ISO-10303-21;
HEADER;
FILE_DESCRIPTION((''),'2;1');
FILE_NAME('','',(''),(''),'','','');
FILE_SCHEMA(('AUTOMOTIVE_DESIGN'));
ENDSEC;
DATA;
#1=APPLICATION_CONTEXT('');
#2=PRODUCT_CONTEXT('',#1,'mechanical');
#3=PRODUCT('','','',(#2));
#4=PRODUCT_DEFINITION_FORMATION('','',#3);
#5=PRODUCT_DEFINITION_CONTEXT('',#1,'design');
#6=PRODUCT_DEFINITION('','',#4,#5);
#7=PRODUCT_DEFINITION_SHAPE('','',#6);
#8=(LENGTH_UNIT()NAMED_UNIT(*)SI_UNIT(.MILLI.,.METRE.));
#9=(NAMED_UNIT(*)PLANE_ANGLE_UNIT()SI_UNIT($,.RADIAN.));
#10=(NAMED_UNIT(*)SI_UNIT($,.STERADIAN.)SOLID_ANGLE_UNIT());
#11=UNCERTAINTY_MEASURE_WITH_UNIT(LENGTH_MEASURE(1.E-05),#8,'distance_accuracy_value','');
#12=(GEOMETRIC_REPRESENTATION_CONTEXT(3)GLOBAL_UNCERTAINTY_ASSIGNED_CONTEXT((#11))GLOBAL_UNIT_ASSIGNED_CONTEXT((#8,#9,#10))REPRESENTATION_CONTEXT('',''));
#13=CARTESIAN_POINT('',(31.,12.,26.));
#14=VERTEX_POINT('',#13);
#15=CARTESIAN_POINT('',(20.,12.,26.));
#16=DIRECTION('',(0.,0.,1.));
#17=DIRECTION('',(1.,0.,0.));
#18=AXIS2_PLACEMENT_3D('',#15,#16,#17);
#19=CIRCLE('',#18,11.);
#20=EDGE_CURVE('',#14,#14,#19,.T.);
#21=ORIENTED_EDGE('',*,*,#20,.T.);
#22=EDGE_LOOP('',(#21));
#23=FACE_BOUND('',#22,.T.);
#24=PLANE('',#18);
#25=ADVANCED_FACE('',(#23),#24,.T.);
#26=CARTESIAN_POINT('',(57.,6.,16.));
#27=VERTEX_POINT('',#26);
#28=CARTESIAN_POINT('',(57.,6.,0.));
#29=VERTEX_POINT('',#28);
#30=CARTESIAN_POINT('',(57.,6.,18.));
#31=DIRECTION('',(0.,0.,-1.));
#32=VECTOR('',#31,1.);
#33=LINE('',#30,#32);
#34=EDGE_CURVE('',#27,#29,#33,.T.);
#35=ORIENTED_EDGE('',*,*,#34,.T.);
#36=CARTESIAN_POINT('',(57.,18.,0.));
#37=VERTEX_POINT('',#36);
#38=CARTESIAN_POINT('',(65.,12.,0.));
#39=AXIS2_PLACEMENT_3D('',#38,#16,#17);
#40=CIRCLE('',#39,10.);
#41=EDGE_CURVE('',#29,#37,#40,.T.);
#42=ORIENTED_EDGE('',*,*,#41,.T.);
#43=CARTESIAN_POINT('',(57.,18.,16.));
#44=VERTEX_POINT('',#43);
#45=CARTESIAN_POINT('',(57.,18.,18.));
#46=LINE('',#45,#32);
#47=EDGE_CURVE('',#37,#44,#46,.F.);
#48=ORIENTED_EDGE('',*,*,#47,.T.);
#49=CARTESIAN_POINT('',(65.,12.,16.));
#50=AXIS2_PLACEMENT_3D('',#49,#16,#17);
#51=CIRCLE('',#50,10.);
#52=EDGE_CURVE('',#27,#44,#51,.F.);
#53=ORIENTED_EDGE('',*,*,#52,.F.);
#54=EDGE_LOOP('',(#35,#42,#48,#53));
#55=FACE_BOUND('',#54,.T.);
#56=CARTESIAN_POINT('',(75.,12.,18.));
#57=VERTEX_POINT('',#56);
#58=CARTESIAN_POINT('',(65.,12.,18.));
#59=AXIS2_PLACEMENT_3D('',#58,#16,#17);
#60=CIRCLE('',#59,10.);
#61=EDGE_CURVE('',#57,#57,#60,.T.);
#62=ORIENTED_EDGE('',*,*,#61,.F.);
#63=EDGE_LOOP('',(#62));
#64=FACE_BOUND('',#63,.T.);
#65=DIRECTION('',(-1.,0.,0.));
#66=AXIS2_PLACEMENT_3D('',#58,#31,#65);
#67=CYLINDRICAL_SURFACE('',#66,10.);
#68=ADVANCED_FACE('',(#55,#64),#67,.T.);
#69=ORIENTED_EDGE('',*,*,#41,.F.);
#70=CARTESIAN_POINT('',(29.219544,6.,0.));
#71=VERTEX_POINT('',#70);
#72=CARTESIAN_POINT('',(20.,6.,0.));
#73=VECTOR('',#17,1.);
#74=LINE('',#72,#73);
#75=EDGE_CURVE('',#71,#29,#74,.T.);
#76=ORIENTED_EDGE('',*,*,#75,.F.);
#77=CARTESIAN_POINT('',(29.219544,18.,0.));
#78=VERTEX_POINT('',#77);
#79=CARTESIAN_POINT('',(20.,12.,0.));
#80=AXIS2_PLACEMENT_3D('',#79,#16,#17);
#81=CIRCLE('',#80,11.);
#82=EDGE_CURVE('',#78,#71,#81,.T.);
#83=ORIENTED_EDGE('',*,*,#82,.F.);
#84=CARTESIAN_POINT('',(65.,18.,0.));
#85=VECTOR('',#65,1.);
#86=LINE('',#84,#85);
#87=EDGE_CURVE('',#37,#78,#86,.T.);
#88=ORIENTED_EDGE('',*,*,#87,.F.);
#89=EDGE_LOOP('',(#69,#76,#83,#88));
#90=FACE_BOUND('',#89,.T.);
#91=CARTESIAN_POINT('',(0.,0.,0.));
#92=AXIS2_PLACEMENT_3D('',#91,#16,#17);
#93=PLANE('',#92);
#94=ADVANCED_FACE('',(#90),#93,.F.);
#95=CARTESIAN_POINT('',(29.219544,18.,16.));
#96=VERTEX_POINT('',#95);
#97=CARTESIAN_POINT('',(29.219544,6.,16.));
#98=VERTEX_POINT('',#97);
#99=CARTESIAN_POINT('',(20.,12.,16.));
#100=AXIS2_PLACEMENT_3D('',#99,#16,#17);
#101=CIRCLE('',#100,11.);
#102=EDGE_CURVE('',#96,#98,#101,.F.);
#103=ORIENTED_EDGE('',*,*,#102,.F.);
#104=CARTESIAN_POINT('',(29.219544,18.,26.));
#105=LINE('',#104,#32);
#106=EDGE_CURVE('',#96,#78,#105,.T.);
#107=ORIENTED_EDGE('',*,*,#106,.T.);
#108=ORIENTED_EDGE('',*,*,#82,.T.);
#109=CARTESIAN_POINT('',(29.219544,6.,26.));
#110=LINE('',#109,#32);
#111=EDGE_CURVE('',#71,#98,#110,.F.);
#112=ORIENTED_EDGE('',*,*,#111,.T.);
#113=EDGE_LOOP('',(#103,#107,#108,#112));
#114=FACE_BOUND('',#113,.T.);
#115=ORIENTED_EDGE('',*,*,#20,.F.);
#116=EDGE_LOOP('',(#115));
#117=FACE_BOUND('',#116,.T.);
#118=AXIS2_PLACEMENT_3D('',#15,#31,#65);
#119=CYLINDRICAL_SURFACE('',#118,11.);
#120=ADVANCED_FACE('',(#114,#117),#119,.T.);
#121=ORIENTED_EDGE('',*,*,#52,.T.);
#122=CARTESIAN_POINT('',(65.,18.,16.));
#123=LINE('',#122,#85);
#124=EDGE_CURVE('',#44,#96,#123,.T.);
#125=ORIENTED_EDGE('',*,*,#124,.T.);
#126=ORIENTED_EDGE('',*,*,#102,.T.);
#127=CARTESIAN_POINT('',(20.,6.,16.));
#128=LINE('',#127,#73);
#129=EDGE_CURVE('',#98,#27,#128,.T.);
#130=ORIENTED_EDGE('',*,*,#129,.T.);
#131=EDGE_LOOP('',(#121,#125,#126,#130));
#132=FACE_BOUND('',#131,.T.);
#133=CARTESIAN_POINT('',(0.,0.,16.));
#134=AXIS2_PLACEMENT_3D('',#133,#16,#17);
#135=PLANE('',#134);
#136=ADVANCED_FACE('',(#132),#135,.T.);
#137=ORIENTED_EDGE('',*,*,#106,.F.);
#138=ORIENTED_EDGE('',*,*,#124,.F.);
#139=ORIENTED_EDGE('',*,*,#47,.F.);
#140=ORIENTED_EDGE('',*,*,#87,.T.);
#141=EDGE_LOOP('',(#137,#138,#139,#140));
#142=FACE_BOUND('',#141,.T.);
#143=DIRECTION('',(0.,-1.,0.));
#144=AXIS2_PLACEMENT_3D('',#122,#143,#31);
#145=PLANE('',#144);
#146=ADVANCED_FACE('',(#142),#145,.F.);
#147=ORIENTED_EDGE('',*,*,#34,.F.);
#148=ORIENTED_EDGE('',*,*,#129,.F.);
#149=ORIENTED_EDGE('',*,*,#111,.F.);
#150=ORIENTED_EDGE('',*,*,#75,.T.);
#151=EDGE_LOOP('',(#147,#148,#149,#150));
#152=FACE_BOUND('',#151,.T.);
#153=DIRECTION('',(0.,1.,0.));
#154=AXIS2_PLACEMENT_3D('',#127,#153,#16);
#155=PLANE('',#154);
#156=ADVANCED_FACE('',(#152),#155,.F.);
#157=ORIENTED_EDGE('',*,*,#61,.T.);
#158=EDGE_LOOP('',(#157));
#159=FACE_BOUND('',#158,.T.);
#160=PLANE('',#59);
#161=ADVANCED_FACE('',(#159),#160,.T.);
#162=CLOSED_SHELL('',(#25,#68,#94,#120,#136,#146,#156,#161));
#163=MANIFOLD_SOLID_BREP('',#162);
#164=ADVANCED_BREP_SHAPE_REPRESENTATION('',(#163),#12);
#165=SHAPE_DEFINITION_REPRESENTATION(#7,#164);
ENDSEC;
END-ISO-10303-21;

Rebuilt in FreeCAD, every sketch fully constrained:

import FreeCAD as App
import Part
import Sketcher

V = App.Vector
Q = App.Units.Quantity

doc = App.newDocument("Part")
body = doc.addObject("PartDesign::Body", "Body")

# Sketch on XY plane
sketch1 = body.newObject("Sketcher::SketchObject", "Sketch")
sketch1.AttachmentSupport = (doc.getObject("XY_Plane"), [""])
sketch1.MapMode = "FlatFace"
sketch1.addGeometry([
    Part.LineSegment(V(20, 18, 0), V(20, 6, 0)),
    Part.LineSegment(V(20, 6, 0), V(65, 6, 0)),
    Part.LineSegment(V(65, 6, 0), V(65, 18, 0)),
    Part.LineSegment(V(65, 18, 0), V(20, 18, 0)),
], False)
sketch1.addConstraint([
    Sketcher.Constraint("Coincident", 0, 2, 1, 1),
    Sketcher.Constraint("Coincident", 1, 2, 2, 1),
    Sketcher.Constraint("Coincident", 2, 2, 3, 1),
    Sketcher.Constraint("Coincident", 3, 2, 0, 1),
    Sketcher.Constraint("Vertical", 0),
    Sketcher.Constraint("Horizontal", 1),
    Sketcher.Constraint("Vertical", 2),
    Sketcher.Constraint("Horizontal", 3),
    Sketcher.Constraint("DistanceX", 1, 1, 1, 2, Q("45 mm")),
    Sketcher.Constraint("DistanceY", 0, 2, 0, 1, Q("12 mm")),
    Sketcher.Constraint("DistanceX", -1, 1, 0, 2, Q("20 mm")),
    Sketcher.Constraint("DistanceY", -1, 1, 0, 2, Q("6 mm")),
])
pad1 = body.newObject("PartDesign::Pad", "Pad")
pad1.Profile = sketch1
pad1.Length = 16

# Sketch on XY plane
sketch2 = body.newObject("Sketcher::SketchObject", "Sketch001")
sketch2.AttachmentSupport = (doc.getObject("XY_Plane"), [""])
sketch2.MapMode = "FlatFace"
sketch2.addGeometry(Part.Circle(V(20, 12, 0), V(0, 0, 1), 11), False)
sketch2.addConstraint([
    Sketcher.Constraint("Diameter", 0, Q("22 mm")),
    Sketcher.Constraint("DistanceX", -1, 1, 0, 3, Q("20 mm")),
    Sketcher.Constraint("DistanceY", -1, 1, 0, 3, Q("12 mm")),
])
pad2 = body.newObject("PartDesign::Pad", "Pad001")
pad2.Profile = sketch2
pad2.Length = 26

# Sketch on XY plane
sketch3 = body.newObject("Sketcher::SketchObject", "Sketch002")
sketch3.AttachmentSupport = (doc.getObject("XY_Plane"), [""])
sketch3.MapMode = "FlatFace"
sketch3.addGeometry(Part.Circle(V(65, 12, 0), V(0, 0, 1), 10), False)
sketch3.addConstraint([
    Sketcher.Constraint("Diameter", 0, Q("20 mm")),
    Sketcher.Constraint("DistanceX", -1, 1, 0, 3, Q("65 mm")),
    Sketcher.Constraint("DistanceY", -1, 1, 0, 3, Q("12 mm")),
])
pad3 = body.newObject("PartDesign::Pad", "Pad002")
pad3.Profile = sketch3
pad3.Length = 18

doc.recompute()
